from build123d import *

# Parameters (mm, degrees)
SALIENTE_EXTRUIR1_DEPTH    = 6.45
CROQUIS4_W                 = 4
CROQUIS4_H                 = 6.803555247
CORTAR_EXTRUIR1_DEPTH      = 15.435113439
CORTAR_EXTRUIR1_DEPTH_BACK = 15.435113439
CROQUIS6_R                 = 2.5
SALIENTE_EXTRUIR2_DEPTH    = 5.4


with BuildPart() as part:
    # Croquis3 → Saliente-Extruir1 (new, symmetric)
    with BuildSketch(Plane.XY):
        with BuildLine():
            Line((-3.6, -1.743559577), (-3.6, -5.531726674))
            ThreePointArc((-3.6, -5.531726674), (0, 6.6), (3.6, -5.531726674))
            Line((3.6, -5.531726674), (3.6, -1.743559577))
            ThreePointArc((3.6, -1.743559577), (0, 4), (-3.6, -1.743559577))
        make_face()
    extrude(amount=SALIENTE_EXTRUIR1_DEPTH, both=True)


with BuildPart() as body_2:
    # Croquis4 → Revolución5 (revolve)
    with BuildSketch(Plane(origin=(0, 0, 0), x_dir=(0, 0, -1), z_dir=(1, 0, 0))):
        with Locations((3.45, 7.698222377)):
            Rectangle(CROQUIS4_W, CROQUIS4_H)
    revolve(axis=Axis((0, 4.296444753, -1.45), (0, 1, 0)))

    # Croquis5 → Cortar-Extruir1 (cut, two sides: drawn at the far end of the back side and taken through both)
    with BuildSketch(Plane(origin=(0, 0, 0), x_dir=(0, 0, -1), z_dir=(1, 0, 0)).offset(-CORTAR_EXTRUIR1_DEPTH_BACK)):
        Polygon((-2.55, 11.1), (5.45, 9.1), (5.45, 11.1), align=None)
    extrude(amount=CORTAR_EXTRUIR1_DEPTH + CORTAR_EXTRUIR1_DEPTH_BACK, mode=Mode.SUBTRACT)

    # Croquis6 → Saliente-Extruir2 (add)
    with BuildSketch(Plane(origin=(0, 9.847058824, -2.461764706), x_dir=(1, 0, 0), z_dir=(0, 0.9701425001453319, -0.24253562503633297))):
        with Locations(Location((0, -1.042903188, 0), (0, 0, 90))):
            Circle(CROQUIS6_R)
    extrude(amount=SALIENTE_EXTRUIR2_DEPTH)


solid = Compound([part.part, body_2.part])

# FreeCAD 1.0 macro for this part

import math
import FreeCAD as App
import Part
import Sketcher

V = App.Vector


def add_polygon(sketch, points):
    """Adds a closed chain of lines whose ends are joined by coincident constraints."""
    first, n = sketch.GeometryCount, len(points)
    for a, b in zip(points, points[1:] + points[:1]):
        sketch.addGeometry(Part.LineSegment(App.Vector(*a, 0), App.Vector(*b, 0)), False)
    for i in range(n):
        sketch.addConstraint(Sketcher.Constraint("Coincident", first + i, 2, first + (i + 1) % n, 1))

doc = App.newDocument("Part")
params = doc.addObject("Spreadsheet::Sheet", "Params")
for row, (alias, value) in enumerate([
    ("sketch1_radius", "4 mm"),
    ("sketch1_radius2", "6.6 mm"),
    ("pad1_length", "12.9 mm"),
    ("sketch2_height", "4 mm"),
    ("revolution_angle", "360 deg"),
    ("sketch3_width", "2 mm"),
    ("sketch3_height", "8 mm"),
    ("sketch4_diameter", "5 mm"),
    ("pad2_length", "5.4 mm"),
], start=1):
    params.set(f"A{row}", alias)
    params.set(f"B{row}", "=" + value)
    params.setAlias(f"B{row}", alias)

body = doc.addObject("PartDesign::Body", "Body")

# Sketch on XY plane
sketch1 = doc.addObject("Sketcher::SketchObject", "Sketch")
body.addObject(sketch1)
sketch1.AttachmentSupport = (doc.XY_Plane, [""])
sketch1.MapMode = "FlatFace"
sketch1.addGeometry([
    Part.LineSegment(V(-3.6, -5.531727, 0), V(-3.6, -1.74356, 0)),
    Part.ArcOfCircle(Part.Circle(V(0, 0, 0), V(0, 0, 1), 4), math.radians(-25.841933), math.radians(205.841933)),
    Part.LineSegment(V(3.6, -1.74356, 0), V(3.6, -5.531727, 0)),
    Part.ArcOfCircle(Part.Circle(V(0, 0, 0), V(0, 0, 1), 6.6), math.radians(-56.944269), math.radians(236.944269)),
], False)
sketch1.addConstraint([
    Sketcher.Constraint("Coincident", 0, 2, 1, 2),
    Sketcher.Constraint("Coincident", 1, 1, 2, 1),
    Sketcher.Constraint("Coincident", 2, 2, 3, 1),
    Sketcher.Constraint("Coincident", 3, 2, 0, 1),
    Sketcher.Constraint("Vertical", 0),
    Sketcher.Constraint("Vertical", 2),
    Sketcher.Constraint("Coincident", 1, 3, -1, 1),
    Sketcher.Constraint("Coincident", 3, 3, -1, 1),
    Sketcher.Constraint("Horizontal", 0, 2, 1, 1),
    Sketcher.Constraint("Radius", 1, 4.0),
    Sketcher.Constraint("Radius", 3, 6.6),
    Sketcher.Constraint("DistanceX", 0, 2, -1, 1, 3.6),
])
sketch1.setExpression("Constraints[9]", "Params.sketch1_radius")
sketch1.setExpression("Constraints[10]", "Params.sketch1_radius2")
pad1 = doc.addObject("PartDesign::Pad", "Pad")
body.addObject(pad1)
pad1.Profile = sketch1
pad1.setExpression("Length", "Params.pad1_length")
pad1.Midplane = True
body2 = doc.addObject("PartDesign::Body", "Body001")

# Sketch on YZ plane
sketch2 = doc.addObject("Sketcher::SketchObject", "Sketch001")
body2.addObject(sketch2)
sketch2.AttachmentSupport = (doc.getObject("YZ_Plane001"), [""])
sketch2.MapMode = "FlatFace"
add_polygon(sketch2, [(11.1, -1.45), (4.296445, -1.45), (4.296445, -5.45), (11.1, -5.45)])  # lines 0-3
sketch2.addGeometry(Part.LineSegment(V(4.296445, -1.45, 0), V(11.1, -1.45, 0)), True)  # axis
sketch2.addConstraint([
    Sketcher.Constraint("Horizontal", 0),
    Sketcher.Constraint("Vertical", 1),
    Sketcher.Constraint("Horizontal", 2),
    Sketcher.Constraint("Vertical", 3),
    Sketcher.Constraint("Horizontal", 4),
    Sketcher.Constraint("Coincident", 4, 1, 0, 2),
    Sketcher.Constraint("Vertical", 2, 2, 4, 2),
    Sketcher.Constraint("DistanceY", 1, 2, 1, 1, 4.0),
    Sketcher.Constraint("DistanceX", -1, 1, 2, 2, 11.1),
    Sketcher.Constraint("DistanceY", 0, 2, -1, 1, 1.45),
    Sketcher.Constraint("DistanceX", 0, 2, 0, 1, 6.803555),
])
sketch2.setExpression("Constraints[11]", "Params.sketch2_height")
revolution = doc.addObject("PartDesign::Revolution", "Revolution")
body2.addObject(revolution)
revolution.Profile = sketch2
revolution.ReferenceAxis = (sketch2, ["Axis0"])
revolution.setExpression("Angle", "Params.revolution_angle")

# Sketch on YZ plane
sketch3 = doc.addObject("Sketcher::SketchObject", "Sketch002")
body2.addObject(sketch3)
sketch3.AttachmentSupport = (doc.getObject("YZ_Plane001"), [""])
sketch3.MapMode = "FlatFace"
add_polygon(sketch3, [(11.1, 2.55), (9.1, -5.45), (11.1, -5.45)])  # lines 0-2
sketch3.addConstraint([
    Sketcher.Constraint("Horizontal", 1),
    Sketcher.Constraint("Vertical", 2),
    Sketcher.Constraint("DistanceX", 1, 1, 1, 2, 2.0),
    Sketcher.Constraint("DistanceY", 2, 1, 2, 2, 8.0),
    Sketcher.Constraint("DistanceX", -1, 1, 0, 2, 9.1),
    Sketcher.Constraint("DistanceY", 0, 2, -1, 1, 5.45),
])
sketch3.setExpression("Constraints[5]", "Params.sketch3_width")
sketch3.setExpression("Constraints[6]", "Params.sketch3_height")
pocket1 = doc.addObject("PartDesign::Pocket", "Pocket")
body2.addObject(pocket1)
pocket1.Profile = sketch3
pocket1.Type = "ThroughAll"
pocket1.Midplane = True

# Sketch on an angled plane
sketch4 = doc.addObject("Sketcher::SketchObject", "Sketch003")
body2.addObject(sketch4)
sketch4.Placement = App.Placement(V(0, 9.847059, -2.461765), App.Rotation(V(1, 0, 0), V(0, -0.242535625, -0.9701425), V(0, 0.9701425, -0.242535625), "ZXY"))
sketch4.addGeometry(Part.Circle(V(0, -1.042903, 0), V(0, 0, 1), 2.5), False)
sketch4.addConstraint([
    Sketcher.Constraint("PointOnObject", 0, 3, -2),
    Sketcher.Constraint("Diameter", 0, 5.0),
    Sketcher.Constraint("DistanceY", 0, 3, -1, 1, 1.042903),
])
sketch4.setExpression("Constraints[1]", "Params.sketch4_diameter")
pad2 = doc.addObject("PartDesign::Pad", "Pad001")
body2.addObject(pad2)
pad2.Profile = sketch4
pad2.setExpression("Length", "Params.pad2_length")

doc.recompute()
